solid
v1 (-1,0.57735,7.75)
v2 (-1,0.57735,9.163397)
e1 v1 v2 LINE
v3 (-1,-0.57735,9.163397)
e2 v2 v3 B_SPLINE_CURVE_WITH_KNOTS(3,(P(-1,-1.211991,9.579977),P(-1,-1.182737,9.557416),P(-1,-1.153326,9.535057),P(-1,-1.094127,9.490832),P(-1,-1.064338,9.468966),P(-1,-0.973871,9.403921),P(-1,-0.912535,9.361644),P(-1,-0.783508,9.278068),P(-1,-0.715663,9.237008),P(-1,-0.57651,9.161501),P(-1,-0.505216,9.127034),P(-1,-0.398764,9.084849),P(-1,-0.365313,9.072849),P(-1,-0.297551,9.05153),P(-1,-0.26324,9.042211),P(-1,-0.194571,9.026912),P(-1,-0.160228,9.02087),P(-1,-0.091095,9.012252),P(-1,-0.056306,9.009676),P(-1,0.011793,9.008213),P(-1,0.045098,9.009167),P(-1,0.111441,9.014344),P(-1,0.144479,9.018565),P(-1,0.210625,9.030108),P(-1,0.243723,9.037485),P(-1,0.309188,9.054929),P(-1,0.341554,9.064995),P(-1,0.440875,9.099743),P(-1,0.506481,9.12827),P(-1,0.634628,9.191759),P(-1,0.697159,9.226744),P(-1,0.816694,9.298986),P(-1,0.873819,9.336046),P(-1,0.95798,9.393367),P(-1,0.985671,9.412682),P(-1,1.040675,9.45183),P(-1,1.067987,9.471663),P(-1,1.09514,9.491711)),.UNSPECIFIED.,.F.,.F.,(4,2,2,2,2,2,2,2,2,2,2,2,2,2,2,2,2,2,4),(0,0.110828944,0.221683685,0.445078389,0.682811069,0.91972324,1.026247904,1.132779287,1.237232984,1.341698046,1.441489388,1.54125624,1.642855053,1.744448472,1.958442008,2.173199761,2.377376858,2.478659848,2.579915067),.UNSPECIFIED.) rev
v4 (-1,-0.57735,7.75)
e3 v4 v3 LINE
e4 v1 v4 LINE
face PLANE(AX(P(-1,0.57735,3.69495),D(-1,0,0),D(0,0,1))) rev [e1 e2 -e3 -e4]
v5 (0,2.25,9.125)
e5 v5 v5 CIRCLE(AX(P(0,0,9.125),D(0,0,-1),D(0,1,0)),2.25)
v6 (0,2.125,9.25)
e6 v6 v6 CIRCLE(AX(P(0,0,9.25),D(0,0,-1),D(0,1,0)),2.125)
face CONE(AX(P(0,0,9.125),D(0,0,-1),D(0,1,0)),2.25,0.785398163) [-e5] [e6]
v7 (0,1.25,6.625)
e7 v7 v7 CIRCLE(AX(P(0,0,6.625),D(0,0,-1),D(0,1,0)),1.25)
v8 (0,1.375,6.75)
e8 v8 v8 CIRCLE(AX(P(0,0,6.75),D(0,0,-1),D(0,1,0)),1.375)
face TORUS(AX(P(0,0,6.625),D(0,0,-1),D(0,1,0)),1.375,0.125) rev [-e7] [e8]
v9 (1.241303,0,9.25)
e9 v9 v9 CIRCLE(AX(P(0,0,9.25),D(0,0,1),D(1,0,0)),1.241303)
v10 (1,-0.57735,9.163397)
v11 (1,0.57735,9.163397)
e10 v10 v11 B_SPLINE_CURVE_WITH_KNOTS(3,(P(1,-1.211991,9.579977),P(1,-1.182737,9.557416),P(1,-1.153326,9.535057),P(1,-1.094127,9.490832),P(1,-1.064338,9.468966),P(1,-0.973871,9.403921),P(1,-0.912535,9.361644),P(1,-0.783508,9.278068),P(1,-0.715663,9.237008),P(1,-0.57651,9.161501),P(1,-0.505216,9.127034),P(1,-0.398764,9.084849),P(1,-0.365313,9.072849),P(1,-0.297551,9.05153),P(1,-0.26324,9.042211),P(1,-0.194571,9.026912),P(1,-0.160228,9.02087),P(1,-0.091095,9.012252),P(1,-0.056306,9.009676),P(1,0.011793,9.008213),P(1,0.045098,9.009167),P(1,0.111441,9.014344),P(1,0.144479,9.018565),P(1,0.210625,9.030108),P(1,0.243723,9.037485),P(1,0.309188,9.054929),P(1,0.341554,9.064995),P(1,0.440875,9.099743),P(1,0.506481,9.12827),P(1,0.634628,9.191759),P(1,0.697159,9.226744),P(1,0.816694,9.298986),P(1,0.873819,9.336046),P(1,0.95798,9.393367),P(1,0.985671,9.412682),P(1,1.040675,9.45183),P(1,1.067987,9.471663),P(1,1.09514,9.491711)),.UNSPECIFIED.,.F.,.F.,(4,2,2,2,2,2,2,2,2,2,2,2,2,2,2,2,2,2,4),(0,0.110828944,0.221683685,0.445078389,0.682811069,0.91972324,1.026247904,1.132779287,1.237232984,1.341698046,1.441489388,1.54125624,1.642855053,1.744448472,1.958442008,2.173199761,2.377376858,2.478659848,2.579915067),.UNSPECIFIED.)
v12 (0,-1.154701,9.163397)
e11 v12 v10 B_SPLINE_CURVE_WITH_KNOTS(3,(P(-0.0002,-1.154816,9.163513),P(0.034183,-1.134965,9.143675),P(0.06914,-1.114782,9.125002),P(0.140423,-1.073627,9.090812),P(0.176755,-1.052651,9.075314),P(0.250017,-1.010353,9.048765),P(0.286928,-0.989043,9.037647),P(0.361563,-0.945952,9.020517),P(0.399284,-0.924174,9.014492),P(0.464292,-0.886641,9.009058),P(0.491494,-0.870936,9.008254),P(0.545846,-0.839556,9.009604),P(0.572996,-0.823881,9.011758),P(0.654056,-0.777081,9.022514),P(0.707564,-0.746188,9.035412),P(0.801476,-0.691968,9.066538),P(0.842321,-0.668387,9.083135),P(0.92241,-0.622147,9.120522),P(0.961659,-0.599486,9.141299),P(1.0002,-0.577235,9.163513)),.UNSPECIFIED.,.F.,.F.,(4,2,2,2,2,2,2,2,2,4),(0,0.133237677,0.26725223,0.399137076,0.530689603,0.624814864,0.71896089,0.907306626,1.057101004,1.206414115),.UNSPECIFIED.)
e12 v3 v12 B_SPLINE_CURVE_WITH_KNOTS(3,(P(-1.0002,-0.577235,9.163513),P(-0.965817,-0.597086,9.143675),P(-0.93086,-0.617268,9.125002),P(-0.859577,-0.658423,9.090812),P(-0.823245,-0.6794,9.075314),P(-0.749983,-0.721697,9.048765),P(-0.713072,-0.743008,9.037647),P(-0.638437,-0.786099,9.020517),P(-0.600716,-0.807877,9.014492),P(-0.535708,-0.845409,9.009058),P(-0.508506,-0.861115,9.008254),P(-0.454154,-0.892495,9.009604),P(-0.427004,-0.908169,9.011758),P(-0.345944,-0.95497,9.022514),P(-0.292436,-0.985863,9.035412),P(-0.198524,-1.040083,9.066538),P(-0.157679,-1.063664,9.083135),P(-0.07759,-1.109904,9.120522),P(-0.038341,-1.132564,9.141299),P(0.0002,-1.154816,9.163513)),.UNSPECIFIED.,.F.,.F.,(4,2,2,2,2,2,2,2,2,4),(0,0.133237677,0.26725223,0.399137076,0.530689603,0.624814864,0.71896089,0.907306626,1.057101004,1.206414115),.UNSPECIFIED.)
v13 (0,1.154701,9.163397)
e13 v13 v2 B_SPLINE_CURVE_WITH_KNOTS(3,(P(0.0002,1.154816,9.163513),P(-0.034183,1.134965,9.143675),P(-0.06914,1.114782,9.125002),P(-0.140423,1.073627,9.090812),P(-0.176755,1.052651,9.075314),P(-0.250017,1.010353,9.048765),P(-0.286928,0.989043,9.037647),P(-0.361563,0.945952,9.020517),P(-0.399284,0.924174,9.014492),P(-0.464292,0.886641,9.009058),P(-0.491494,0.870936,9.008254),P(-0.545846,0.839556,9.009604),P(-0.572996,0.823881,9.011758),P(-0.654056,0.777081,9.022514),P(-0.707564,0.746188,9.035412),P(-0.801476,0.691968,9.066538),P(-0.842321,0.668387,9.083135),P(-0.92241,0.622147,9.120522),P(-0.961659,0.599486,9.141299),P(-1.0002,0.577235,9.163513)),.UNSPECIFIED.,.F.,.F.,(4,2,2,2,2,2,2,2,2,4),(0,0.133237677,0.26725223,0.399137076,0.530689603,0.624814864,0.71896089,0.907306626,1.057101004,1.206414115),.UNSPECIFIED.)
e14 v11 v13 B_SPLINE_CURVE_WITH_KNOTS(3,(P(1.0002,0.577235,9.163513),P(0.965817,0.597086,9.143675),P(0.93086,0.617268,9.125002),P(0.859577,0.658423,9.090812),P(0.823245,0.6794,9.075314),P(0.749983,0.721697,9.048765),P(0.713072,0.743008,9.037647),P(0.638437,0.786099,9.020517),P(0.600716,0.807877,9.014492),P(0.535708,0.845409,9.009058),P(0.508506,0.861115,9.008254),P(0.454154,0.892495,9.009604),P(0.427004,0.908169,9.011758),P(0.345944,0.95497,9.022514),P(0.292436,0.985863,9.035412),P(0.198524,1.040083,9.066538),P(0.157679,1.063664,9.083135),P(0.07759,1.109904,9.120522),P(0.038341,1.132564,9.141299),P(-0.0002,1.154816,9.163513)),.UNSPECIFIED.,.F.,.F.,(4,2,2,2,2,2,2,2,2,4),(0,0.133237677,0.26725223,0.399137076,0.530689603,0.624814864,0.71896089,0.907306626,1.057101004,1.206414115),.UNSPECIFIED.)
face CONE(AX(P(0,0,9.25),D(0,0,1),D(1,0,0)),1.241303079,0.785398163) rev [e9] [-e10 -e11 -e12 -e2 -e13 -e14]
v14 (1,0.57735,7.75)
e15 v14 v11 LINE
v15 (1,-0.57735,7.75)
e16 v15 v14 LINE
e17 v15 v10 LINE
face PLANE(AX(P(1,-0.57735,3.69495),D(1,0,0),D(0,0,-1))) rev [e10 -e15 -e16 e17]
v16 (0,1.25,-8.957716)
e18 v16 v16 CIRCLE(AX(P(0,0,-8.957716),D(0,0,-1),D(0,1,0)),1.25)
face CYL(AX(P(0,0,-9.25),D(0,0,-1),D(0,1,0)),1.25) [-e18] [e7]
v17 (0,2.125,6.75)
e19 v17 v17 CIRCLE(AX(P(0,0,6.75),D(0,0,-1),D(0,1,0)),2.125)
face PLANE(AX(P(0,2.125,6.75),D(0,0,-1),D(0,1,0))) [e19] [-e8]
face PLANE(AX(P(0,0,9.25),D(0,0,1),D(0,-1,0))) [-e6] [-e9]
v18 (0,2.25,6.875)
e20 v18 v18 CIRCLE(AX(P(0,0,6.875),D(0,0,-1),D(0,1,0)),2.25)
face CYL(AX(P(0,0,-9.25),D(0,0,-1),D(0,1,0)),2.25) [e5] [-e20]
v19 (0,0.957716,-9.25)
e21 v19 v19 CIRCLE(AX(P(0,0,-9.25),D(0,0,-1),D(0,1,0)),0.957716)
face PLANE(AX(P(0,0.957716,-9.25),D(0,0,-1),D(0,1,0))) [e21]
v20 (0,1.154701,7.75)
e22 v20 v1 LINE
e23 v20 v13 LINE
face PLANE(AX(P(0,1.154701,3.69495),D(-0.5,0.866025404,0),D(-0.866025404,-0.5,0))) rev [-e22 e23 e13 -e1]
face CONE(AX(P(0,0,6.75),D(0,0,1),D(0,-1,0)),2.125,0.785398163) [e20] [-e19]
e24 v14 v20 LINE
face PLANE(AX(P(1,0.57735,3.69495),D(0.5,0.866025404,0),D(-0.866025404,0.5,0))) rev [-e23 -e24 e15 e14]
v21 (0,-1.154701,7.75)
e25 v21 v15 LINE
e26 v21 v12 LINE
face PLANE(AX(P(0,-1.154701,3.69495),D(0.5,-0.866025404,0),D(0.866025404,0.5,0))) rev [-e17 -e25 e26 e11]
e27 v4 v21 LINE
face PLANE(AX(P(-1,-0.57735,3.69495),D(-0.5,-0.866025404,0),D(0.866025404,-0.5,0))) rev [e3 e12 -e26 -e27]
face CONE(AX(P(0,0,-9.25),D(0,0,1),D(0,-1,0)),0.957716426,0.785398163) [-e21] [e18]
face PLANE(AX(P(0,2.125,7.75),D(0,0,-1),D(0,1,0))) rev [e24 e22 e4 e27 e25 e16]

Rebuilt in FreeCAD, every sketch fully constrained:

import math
import FreeCAD as App
import Part
import Sketcher
Q = App.Units.Quantity


def faces_at(feature, points):
    """Names of the faces that lie closest to the given points."""
    faces = feature.Shape.Faces
    near = lambda p: min(range(len(faces)), key=lambda i: faces[i].distToShape(Part.Vertex(*p))[0])
    return sorted({f"Face{near(p) + 1}" for p in points})


def add_polygon(sketch, points):
    """Adds a closed chain of lines whose ends are joined by coincident constraints."""
    first, n = sketch.GeometryCount, len(points)
    for a, b in zip(points, points[1:] + points[:1]):
        sketch.addGeometry(Part.LineSegment(App.Vector(*a, 0), App.Vector(*b, 0)), False)
    for i in range(n):
        sketch.addConstraint(Sketcher.Constraint("Coincident", first + i, 2, first + (i + 1) % n, 1))

doc = App.newDocument("Part")
body = doc.addObject("PartDesign::Body", "Body")

# Sketch on YZ plane
sketch1 = body.newObject("Sketcher::SketchObject", "Sketch")
sketch1.AttachmentSupport = (doc.getObject("YZ_Plane"), [""])
sketch1.MapMode = "FlatFace"
sketch1.addGeometry([
    Part.LineSegment(App.Vector(2.125, 9.25, 0), App.Vector(0, 9.25, 0)),  # 0
    Part.LineSegment(App.Vector(0, 9.25, 0), App.Vector(0, -9.25, 0)),  # 1
    Part.LineSegment(App.Vector(0, -9.25, 0), App.Vector(0.957716, -9.25, 0)),  # 2
    Part.LineSegment(App.Vector(0.957716, -9.25, 0), App.Vector(1.25, -8.957716, 0)),  # 3
    Part.LineSegment(App.Vector(1.25, -8.957716, 0), App.Vector(1.25, 6.625, 0)),  # 4
    Part.ArcOfCircle(Part.Circle(App.Vector(1.375, 6.625, 0), App.Vector(0, 0, 1), 0.125), math.radians(90), math.radians(180)),  # 5
    Part.LineSegment(App.Vector(1.375, 6.75, 0), App.Vector(2.125, 6.75, 0)),  # 6
    Part.LineSegment(App.Vector(2.125, 6.75, 0), App.Vector(2.25, 6.875, 0)),  # 7
    Part.LineSegment(App.Vector(2.25, 6.875, 0), App.Vector(2.25, 9.125, 0)),  # 8
    Part.LineSegment(App.Vector(2.25, 9.125, 0), App.Vector(2.125, 9.25, 0)),  # 9
], False)
sketch1.addConstraint([
    Sketcher.Constraint("Coincident", 0, 2, 1, 1),
    Sketcher.Constraint("Coincident", 1, 2, 2, 1),
    Sketcher.Constraint("Coincident", 2, 2, 3, 1),
    Sketcher.Constraint("Coincident", 3, 2, 4, 1),
    Sketcher.Constraint("Tangent", 4, 2, 5, 2),
    Sketcher.Constraint("Tangent", 5, 1, 6, 1),
    Sketcher.Constraint("Coincident", 6, 2, 7, 1),
    Sketcher.Constraint("Coincident", 7, 2, 8, 1),
    Sketcher.Constraint("Coincident", 8, 2, 9, 1),
    Sketcher.Constraint("Coincident", 9, 2, 0, 1),
    Sketcher.Constraint("Horizontal", 0),
    Sketcher.Constraint("Vertical", 1),
    Sketcher.Constraint("Horizontal", 2),
    Sketcher.Constraint("Vertical", 4),
    Sketcher.Constraint("Horizontal", 6),
    Sketcher.Constraint("Vertical", 8),
    Sketcher.Constraint("Symmetric", 0, 2, 1, 2, -1, 1),
    Sketcher.Constraint("Parallel", 3, 7),
    Sketcher.Constraint("Perpendicular", 7, 9),
    Sketcher.Constraint("Vertical", 6, 2, 9, 2),
    Sketcher.Constraint("Equal", 7, 9),
    Sketcher.Constraint("DistanceY", 1, 2, 1, 1, Q("18.5 mm")),
    Sketcher.Constraint("Radius", 5, Q("0.125 mm")),
    Sketcher.Constraint("DistanceY", 2, 2, 5, 1, Q("16 mm")),
    Sketcher.Constraint("DistanceX", 4, 2, 7, 2, Q("1 mm")),
    Sketcher.Constraint("DistanceX", 6, 1, 6, 2, Q("0.75 mm")),
    Sketcher.Constraint("DistanceX", 0, 2, 0, 1, Q("2.125 mm")),
    Sketcher.Constraint("Distance", 3, Q("0.413351 mm")),
])
revolution = body.newObject("PartDesign::Revolution", "Revolution")
revolution.Profile = sketch1
revolution.ReferenceAxis = (sketch1, ["V_Axis"])
revolution.Angle = 360

# Sketch on XY plane
sketch2 = body.newObject("Sketcher::SketchObject", "Sketch001")
sketch2.AttachmentSupport = (doc.getObject("XY_Plane"), [""])
sketch2.MapMode = "FlatFace"
sketch2.AttachmentOffset = App.Placement(App.Vector(0, 0, 9.25), App.Rotation())
add_polygon(sketch2, [(1, -0.57735), (1, 0.57735), (0, 1.154701), (-1, 0.57735), (-1, -0.57735), (0, -1.154701)])  # lines 0-5
sketch2.addConstraint([
    Sketcher.Constraint("Vertical", 0),
    Sketcher.Constraint("Vertical", 3),
    Sketcher.Constraint("Symmetric", 0, 2, 3, 2, -1, 1),
    Sketcher.Constraint("Symmetric", 1, 2, 4, 2, -1, 1),
    Sketcher.Constraint("PointOnObject", 1, 2, -2),
    Sketcher.Constraint("Parallel", 2, 5),
    Sketcher.Constraint("Horizontal", 0, 2, 2, 2),
    Sketcher.Constraint("Angle", 1, Q("150 deg")),
    Sketcher.Constraint("DistanceX", -1, 1, 0, 2, Q("1 mm")),
    Sketcher.Constraint("DistanceY", 0, 1, 0, 2, Q("1.154701 mm")),
])
pocket1 = body.newObject("PartDesign::Pocket", "Pocket")
pocket1.Profile = sketch2
pocket1.Length = 1.5
body2 = doc.addObject("PartDesign::Body", "Body001")

# Sketch on XY plane
sketch3 = body2.newObject("Sketcher::SketchObject", "Sketch002")
sketch3.AttachmentSupport = (doc.getObject("XY_Plane001"), [""])
sketch3.MapMode = "FlatFace"
sketch3.AttachmentOffset = App.Placement(App.Vector(0, 0, 9.25), App.Rotation())
sketch3.addGeometry(Part.Circle(App.Vector(0, 0, 0), App.Vector(0, 0, 1), 1.241303), False)
sketch3.addConstraint([
    Sketcher.Constraint("Coincident", 0, 3, -1, 1),
    Sketcher.Constraint("Diameter", 0, Q("2.482606 mm")),
])
pad1 = body2.newObject("PartDesign::Pad", "Pad")
pad1.Profile = sketch3
pad1.Length = 1.5
pad1.Reversed = True
doc.recompute()

datumplane = body2.newObject("PartDesign::Plane", "DatumPlane")
datumplane.AttachmentSupport = (doc.getObject("XY_Plane001"), [""])
datumplane.MapMode = "FlatFace"
datumplane.AttachmentOffset = App.Placement(App.Vector(0, 0, 9.25), App.Rotation())
draft = body2.newObject("PartDesign::Draft", "Draft")
draft.Base = (pad1, faces_at(pad1, [(-1.241, 0, 8.5)]))
draft.NeutralPlane = (datumplane, [""])
draft.Angle = 45
draft.Reversed = True
doc.recompute()

boolean = body.newObject("PartDesign::Boolean", "Boolean")
boolean.Type = "Cut"
boolean.addObjects([body2])

doc.recompute()
